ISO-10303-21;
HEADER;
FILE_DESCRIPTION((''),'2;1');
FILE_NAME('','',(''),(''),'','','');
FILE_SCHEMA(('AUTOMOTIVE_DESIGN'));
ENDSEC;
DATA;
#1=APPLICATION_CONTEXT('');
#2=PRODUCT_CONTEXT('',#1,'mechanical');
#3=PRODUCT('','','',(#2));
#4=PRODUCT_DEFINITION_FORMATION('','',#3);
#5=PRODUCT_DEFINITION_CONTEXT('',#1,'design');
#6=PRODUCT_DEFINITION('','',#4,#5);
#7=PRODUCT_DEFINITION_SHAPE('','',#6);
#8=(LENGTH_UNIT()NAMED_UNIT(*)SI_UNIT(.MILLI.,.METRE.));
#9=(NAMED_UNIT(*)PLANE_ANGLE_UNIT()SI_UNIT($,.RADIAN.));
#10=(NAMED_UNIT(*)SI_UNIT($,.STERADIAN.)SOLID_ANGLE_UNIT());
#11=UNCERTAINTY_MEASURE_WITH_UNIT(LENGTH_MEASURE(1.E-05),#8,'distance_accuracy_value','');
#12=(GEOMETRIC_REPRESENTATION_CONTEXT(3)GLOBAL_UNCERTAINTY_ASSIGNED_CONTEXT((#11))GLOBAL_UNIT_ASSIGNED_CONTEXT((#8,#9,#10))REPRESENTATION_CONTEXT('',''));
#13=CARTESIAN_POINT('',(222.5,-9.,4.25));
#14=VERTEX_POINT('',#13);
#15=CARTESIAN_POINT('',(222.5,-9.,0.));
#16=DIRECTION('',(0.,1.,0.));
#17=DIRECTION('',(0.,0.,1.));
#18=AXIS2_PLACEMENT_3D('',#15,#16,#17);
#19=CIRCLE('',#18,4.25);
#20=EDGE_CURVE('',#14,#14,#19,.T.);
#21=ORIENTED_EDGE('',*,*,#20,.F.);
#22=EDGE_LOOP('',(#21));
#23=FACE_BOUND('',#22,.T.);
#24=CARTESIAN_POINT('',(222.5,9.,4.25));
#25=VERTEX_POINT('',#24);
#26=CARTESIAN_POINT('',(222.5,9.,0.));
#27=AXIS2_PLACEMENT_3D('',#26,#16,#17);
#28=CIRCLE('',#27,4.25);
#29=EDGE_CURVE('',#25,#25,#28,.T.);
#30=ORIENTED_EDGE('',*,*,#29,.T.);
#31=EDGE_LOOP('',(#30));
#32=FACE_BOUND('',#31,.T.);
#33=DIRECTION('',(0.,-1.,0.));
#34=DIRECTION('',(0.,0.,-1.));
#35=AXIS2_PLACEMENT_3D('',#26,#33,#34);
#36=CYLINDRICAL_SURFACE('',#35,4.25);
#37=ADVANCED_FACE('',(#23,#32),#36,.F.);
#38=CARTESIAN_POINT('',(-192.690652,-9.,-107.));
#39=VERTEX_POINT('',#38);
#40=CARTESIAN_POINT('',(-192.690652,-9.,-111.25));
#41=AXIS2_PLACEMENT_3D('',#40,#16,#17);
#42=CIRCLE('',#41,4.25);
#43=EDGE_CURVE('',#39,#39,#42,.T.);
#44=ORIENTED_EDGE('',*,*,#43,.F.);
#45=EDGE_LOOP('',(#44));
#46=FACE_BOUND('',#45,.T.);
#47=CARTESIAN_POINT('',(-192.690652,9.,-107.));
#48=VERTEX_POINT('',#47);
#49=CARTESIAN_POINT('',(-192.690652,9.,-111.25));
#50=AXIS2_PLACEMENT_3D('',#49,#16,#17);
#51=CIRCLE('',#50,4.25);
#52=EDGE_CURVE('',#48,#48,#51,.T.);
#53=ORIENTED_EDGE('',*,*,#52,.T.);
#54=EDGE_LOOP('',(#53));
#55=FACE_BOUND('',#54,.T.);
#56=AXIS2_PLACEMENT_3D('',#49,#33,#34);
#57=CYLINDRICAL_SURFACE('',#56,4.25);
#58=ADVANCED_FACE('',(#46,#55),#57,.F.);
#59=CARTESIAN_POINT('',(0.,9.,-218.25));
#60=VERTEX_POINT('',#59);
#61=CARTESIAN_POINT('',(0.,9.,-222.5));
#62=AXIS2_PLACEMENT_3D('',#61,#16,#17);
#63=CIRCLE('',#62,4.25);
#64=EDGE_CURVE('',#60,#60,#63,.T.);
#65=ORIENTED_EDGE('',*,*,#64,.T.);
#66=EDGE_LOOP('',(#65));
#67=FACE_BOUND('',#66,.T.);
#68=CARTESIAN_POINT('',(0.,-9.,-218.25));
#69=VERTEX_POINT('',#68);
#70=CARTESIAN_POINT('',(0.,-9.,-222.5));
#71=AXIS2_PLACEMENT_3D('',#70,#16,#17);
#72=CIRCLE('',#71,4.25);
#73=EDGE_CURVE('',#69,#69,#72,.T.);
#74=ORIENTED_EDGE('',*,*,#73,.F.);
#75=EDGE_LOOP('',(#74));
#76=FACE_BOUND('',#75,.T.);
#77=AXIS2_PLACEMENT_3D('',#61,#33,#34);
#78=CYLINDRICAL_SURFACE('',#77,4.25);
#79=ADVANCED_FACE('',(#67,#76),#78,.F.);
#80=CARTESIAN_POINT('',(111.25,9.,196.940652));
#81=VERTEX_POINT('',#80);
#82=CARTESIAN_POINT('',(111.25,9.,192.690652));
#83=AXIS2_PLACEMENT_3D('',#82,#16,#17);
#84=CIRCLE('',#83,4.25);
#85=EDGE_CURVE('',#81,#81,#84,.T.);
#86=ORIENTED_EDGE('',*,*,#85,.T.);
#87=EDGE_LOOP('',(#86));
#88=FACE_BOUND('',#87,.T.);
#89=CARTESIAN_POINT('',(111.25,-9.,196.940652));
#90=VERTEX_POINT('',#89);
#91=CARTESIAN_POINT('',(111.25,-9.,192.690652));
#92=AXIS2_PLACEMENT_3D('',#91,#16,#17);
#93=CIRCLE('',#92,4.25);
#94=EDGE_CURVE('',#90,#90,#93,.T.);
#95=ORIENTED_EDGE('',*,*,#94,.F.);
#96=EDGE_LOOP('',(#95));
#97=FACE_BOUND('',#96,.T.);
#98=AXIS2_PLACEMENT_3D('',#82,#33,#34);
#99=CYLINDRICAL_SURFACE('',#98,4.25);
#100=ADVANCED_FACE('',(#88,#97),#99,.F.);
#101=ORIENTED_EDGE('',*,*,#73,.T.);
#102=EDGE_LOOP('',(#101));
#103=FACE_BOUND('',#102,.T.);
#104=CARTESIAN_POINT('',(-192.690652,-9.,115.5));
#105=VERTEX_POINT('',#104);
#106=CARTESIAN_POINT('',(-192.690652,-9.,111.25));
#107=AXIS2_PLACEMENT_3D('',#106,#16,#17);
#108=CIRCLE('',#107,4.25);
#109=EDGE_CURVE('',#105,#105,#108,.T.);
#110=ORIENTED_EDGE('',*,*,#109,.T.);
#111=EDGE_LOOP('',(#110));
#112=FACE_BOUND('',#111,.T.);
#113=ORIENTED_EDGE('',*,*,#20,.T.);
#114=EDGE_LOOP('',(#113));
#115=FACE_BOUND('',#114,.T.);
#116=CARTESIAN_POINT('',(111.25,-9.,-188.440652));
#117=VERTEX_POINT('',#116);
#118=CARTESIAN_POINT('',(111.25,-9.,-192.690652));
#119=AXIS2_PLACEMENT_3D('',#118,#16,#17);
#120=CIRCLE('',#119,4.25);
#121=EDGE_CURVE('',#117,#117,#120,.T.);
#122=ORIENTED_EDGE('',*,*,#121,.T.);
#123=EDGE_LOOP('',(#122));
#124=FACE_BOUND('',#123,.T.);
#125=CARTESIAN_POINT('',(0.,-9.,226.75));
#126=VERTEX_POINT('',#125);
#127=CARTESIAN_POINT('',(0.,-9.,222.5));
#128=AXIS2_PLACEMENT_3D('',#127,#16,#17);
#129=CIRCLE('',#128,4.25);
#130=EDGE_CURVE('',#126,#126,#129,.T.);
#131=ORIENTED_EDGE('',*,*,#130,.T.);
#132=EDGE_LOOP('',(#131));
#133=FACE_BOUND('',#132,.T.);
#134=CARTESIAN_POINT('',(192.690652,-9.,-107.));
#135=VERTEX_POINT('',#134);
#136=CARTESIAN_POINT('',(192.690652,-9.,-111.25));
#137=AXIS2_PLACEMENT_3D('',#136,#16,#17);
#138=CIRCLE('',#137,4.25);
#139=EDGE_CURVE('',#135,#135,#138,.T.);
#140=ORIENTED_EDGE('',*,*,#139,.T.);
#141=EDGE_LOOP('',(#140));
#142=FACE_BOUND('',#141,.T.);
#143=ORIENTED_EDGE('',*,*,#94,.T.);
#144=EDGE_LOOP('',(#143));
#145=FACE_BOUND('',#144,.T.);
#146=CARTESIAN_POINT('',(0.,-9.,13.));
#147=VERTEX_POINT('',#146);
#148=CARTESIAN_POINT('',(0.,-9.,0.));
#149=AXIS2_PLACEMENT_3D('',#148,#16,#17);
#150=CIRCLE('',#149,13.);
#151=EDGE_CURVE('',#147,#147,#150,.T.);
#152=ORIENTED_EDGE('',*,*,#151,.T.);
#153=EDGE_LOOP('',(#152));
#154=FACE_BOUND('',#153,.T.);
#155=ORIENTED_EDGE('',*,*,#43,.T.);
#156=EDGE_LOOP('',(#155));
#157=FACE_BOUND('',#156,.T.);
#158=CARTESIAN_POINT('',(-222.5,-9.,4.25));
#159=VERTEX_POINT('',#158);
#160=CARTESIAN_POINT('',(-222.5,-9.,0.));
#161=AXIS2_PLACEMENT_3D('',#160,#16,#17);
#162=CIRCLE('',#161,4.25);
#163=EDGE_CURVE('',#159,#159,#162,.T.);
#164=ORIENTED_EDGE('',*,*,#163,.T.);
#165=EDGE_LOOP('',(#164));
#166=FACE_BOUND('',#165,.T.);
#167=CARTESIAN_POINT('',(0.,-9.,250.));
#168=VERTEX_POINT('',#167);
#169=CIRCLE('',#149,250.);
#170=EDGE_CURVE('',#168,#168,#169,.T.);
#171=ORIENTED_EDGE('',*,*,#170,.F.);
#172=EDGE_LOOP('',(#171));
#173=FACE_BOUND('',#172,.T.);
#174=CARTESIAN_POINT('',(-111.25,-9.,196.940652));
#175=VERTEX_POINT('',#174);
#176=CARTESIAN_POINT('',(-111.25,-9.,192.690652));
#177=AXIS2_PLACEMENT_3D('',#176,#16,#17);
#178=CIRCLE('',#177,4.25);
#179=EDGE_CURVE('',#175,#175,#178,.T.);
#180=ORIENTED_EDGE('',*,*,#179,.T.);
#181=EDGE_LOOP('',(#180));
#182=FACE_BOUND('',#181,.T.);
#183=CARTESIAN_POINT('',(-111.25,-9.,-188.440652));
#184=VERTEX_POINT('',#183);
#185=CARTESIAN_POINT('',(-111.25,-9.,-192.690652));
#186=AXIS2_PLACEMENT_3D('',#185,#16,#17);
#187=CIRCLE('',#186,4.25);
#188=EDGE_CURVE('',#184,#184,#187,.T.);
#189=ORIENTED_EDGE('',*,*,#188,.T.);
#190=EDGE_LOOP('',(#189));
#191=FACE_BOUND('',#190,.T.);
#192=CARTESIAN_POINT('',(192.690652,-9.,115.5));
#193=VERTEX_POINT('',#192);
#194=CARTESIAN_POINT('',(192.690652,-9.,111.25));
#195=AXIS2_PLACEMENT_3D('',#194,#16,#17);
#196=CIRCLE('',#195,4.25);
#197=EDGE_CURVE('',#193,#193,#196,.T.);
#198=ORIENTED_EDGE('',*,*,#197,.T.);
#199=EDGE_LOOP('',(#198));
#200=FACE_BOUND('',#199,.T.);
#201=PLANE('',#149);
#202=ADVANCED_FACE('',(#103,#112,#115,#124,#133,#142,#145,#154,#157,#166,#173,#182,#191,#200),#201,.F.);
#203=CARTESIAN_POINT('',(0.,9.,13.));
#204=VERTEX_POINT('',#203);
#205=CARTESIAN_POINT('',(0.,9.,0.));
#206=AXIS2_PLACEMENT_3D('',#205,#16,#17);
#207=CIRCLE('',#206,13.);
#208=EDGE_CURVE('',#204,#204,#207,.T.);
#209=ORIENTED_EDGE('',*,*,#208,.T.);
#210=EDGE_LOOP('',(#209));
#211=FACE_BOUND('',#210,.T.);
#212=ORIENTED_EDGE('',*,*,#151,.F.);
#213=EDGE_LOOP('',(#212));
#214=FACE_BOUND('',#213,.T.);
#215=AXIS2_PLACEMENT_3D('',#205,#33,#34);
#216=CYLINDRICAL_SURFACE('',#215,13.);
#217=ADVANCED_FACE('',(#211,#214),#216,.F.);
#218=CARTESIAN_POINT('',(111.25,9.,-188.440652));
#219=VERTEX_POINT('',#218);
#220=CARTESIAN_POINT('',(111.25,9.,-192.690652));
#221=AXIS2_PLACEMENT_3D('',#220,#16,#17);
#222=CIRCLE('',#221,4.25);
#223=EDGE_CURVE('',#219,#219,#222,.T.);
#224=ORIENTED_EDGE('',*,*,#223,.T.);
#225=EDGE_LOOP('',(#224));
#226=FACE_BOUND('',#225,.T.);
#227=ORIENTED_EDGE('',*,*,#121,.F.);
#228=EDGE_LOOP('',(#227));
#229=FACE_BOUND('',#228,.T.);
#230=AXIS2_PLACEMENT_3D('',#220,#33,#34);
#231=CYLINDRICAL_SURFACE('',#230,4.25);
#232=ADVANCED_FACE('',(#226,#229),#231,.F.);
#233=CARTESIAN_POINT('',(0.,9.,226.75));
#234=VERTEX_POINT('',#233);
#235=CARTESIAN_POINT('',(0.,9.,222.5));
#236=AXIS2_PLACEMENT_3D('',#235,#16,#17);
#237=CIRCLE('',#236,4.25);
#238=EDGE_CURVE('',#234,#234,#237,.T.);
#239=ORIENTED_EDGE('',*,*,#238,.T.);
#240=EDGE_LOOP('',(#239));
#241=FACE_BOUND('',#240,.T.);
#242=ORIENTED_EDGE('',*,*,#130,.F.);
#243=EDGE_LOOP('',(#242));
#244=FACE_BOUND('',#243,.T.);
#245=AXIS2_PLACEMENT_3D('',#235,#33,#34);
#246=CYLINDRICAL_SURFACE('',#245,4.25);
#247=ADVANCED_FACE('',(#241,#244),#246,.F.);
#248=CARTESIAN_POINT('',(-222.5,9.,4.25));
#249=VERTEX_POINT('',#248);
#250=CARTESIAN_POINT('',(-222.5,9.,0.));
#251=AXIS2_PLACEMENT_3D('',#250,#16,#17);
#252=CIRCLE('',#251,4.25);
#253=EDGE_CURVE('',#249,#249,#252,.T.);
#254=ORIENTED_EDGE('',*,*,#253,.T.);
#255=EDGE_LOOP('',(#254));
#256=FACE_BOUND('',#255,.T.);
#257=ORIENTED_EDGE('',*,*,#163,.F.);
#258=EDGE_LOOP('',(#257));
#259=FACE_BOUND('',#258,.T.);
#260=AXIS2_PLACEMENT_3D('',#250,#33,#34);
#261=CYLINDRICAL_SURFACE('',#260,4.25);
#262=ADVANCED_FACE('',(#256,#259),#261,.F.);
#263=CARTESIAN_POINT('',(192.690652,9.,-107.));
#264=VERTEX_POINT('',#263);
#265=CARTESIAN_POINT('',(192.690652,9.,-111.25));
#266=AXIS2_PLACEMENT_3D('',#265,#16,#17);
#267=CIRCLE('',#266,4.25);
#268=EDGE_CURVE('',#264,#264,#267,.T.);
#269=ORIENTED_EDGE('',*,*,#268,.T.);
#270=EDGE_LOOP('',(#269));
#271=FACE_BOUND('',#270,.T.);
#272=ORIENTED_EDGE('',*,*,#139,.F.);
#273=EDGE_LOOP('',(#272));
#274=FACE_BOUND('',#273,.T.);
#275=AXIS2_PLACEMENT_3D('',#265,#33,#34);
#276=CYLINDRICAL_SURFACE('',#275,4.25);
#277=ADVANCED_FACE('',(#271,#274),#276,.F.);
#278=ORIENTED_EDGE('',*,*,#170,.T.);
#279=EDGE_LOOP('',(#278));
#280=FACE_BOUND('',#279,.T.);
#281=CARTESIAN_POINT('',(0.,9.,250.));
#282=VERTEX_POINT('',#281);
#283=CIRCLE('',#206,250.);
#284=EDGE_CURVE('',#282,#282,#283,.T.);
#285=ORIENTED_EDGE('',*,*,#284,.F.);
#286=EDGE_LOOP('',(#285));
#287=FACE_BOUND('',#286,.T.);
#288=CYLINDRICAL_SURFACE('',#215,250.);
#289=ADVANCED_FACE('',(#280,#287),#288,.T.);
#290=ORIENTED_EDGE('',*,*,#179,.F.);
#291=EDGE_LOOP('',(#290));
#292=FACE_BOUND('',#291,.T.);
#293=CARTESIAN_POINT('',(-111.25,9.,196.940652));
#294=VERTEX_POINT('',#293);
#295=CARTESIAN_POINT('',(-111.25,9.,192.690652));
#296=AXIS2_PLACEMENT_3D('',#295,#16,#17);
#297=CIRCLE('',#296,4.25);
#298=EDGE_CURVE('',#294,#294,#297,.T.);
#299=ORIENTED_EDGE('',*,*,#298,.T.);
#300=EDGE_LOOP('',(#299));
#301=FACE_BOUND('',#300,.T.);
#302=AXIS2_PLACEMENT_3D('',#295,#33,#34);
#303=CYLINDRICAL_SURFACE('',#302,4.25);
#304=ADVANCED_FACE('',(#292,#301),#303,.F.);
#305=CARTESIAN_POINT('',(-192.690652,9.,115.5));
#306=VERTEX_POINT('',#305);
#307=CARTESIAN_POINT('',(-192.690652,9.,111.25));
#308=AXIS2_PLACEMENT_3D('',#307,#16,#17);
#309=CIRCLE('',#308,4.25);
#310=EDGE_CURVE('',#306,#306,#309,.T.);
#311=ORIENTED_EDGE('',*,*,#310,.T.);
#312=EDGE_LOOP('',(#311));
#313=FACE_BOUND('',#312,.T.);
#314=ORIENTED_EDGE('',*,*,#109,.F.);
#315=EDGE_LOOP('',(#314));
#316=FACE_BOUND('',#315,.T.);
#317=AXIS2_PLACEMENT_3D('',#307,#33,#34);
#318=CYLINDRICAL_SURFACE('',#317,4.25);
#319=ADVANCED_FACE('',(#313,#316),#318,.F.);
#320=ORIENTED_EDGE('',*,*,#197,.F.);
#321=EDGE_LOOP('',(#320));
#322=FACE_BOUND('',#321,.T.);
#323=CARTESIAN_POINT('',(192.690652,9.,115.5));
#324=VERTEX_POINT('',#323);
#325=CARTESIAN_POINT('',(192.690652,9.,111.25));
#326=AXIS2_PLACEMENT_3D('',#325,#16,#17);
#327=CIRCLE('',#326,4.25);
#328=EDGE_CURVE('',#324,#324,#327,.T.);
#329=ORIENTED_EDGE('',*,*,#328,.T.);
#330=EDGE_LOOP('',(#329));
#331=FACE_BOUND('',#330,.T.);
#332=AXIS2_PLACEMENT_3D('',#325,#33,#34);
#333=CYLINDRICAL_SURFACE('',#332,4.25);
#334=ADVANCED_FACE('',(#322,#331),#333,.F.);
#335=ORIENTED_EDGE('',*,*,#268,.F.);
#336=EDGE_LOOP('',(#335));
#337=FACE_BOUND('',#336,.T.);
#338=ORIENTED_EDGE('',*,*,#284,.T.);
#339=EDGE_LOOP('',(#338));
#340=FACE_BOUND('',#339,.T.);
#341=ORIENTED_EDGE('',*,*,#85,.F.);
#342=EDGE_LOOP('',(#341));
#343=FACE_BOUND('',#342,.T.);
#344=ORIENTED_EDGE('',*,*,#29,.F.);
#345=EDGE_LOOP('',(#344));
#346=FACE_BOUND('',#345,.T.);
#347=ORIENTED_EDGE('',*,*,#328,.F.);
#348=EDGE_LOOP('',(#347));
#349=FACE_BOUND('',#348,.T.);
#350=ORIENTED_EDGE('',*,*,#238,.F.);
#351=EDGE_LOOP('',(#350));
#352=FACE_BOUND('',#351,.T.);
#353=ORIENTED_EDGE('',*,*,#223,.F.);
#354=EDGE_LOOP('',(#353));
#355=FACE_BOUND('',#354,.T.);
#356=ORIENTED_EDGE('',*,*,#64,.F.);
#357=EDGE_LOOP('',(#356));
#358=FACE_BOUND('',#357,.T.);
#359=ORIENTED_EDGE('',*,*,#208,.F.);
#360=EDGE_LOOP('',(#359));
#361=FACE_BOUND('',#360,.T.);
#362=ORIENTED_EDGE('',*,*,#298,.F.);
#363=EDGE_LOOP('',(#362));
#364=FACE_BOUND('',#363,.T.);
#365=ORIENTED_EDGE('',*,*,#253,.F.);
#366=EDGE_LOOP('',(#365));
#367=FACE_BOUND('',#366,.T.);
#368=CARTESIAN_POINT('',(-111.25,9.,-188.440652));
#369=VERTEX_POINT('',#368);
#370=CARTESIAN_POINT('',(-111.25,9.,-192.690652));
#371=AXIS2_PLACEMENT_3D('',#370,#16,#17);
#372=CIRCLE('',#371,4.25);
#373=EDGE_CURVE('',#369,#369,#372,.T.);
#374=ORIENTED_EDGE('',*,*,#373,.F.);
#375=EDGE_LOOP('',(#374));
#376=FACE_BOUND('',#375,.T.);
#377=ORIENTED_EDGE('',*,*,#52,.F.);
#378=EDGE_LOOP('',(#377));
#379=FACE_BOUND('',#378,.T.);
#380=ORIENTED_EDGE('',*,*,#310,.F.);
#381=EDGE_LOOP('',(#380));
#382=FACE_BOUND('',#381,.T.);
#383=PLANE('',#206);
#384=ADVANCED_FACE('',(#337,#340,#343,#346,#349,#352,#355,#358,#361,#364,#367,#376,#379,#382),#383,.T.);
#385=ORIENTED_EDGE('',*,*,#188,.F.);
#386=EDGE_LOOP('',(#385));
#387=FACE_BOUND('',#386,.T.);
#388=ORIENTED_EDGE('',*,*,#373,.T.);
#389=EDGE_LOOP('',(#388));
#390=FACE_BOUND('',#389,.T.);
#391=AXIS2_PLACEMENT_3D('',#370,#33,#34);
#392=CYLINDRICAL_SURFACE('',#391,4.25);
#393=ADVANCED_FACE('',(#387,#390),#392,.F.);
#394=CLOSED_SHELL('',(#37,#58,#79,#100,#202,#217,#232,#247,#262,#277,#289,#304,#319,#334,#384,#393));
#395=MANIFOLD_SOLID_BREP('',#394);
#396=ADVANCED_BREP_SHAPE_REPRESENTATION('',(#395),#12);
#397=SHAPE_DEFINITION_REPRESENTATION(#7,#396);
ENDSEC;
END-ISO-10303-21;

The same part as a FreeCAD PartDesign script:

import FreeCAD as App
import Part
import Sketcher
Q = App.Units.Quantity

doc = App.newDocument("Part")
body = doc.addObject("PartDesign::Body", "Body")

sketch1 = body.newObject("Sketcher::SketchObject", "Sketch")
sketch1.AttachmentSupport = (doc.getObject("XZ_Plane"), [""])
sketch1.MapMode = "FlatFace"
sketch1.addGeometry([
    Part.Circle(App.Vector(0, 0, 0), App.Vector(0, 0, 1), 250),
    Part.Circle(App.Vector(-192.7, -111.2, 0), App.Vector(0, 0, 1), 4.2),
    Part.Circle(App.Vector(-111.2, -192.7, 0), App.Vector(0, 0, 1), 4.2),
    Part.Circle(App.Vector(0, -222.5, 0), App.Vector(0, 0, 1), 4.2),
    Part.Circle(App.Vector(-222.5, 0, 0), App.Vector(0, 0, 1), 4.2),
    Part.Circle(App.Vector(-192.7, 111.2, 0), App.Vector(0, 0, 1), 4.2),
    Part.Circle(App.Vector(-111.2, 192.7, 0), App.Vector(0, 0, 1), 4.2),
    Part.Circle(App.Vector(111.2, -192.7, 0), App.Vector(0, 0, 1), 4.2),
    Part.Circle(App.Vector(192.7, -111.2, 0), App.Vector(0, 0, 1), 4.2),
    Part.Circle(App.Vector(222.5, 0, 0), App.Vector(0, 0, 1), 4.2),
    Part.Circle(App.Vector(0, 0, 0), App.Vector(0, 0, 1), 13),
    Part.Circle(App.Vector(0, 222.5, 0), App.Vector(0, 0, 1), 4.2),
    Part.Circle(App.Vector(111.2, 192.7, 0), App.Vector(0, 0, 1), 4.2),
    Part.Circle(App.Vector(192.7, 111.2, 0), App.Vector(0, 0, 1), 4.2),
], False)
sketch1.addConstraint([
    Sketcher.Constraint("Coincident", 0, 3, -1, 1),
    Sketcher.Constraint("Coincident", 10, 3, -1, 1),
    Sketcher.Constraint("Equal", 1, 2),
    Sketcher.Constraint("Equal", 2, 3),
    Sketcher.Constraint("Equal", 3, 4),
    Sketcher.Constraint("Equal", 4, 5),
    Sketcher.Constraint("Equal", 5, 6),
    Sketcher.Constraint("Equal", 6, 7),
    Sketcher.Constraint("Equal", 7, 8),
    Sketcher.Constraint("Equal", 8, 9),
    Sketcher.Constraint("Equal", 9, 11),
    Sketcher.Constraint("Equal", 11, 12),
    Sketcher.Constraint("Equal", 12, 13),
    Sketcher.Constraint("Symmetric", 6, 3, 7, 3, -1, 1),
    Sketcher.Constraint("Symmetric", 5, 3, 8, 3, -1, 1),
    Sketcher.Constraint("Symmetric", 4, 3, 9, 3, -1, 1),
    Sketcher.Constraint("Symmetric", 3, 3, 11, 3, -1, 1),
    Sketcher.Constraint("Symmetric", 2, 3, 12, 3, -1, 1),
    Sketcher.Constraint("Symmetric", 1, 3, 13, 3, -1, 1),
    Sketcher.Constraint("Symmetric", 2, 3, 7, 3, -2),
    Sketcher.Constraint("Symmetric", 1, 3, 8, 3, -2),
    Sketcher.Constraint("PointOnObject", 3, 3, -2),
    Sketcher.Constraint("PointOnObject", 4, 3, -1),
    Sketcher.Constraint("Diameter", 0, Q("500 mm")),
    Sketcher.Constraint("Diameter", 10, Q("26 mm")),
    Sketcher.Constraint("Diameter", 1, Q("8.5 mm")),
    Sketcher.Constraint("DistanceY", 3, 3, -1, 1, Q("222.5 mm")),
    Sketcher.Constraint("DistanceX", 4, 3, -1, 1, Q("222.5 mm")),
    Sketcher.Constraint("DistanceY", 1, 3, 5, 3, Q("222.5 mm")),
    Sketcher.Constraint("DistanceX", 2, 3, 7, 3, Q("222.5 mm")),
    Sketcher.Constraint("DistanceX", 1, 3, -1, 1, Q("192.690652 mm")),
    Sketcher.Constraint("DistanceY", 2, 3, -1, 1, Q("192.690652 mm")),
])
pad1 = body.newObject("PartDesign::Pad", "Pad")
pad1.Profile = sketch1
pad1.Length = 18
pad1.Midplane = True

doc.recompute()
